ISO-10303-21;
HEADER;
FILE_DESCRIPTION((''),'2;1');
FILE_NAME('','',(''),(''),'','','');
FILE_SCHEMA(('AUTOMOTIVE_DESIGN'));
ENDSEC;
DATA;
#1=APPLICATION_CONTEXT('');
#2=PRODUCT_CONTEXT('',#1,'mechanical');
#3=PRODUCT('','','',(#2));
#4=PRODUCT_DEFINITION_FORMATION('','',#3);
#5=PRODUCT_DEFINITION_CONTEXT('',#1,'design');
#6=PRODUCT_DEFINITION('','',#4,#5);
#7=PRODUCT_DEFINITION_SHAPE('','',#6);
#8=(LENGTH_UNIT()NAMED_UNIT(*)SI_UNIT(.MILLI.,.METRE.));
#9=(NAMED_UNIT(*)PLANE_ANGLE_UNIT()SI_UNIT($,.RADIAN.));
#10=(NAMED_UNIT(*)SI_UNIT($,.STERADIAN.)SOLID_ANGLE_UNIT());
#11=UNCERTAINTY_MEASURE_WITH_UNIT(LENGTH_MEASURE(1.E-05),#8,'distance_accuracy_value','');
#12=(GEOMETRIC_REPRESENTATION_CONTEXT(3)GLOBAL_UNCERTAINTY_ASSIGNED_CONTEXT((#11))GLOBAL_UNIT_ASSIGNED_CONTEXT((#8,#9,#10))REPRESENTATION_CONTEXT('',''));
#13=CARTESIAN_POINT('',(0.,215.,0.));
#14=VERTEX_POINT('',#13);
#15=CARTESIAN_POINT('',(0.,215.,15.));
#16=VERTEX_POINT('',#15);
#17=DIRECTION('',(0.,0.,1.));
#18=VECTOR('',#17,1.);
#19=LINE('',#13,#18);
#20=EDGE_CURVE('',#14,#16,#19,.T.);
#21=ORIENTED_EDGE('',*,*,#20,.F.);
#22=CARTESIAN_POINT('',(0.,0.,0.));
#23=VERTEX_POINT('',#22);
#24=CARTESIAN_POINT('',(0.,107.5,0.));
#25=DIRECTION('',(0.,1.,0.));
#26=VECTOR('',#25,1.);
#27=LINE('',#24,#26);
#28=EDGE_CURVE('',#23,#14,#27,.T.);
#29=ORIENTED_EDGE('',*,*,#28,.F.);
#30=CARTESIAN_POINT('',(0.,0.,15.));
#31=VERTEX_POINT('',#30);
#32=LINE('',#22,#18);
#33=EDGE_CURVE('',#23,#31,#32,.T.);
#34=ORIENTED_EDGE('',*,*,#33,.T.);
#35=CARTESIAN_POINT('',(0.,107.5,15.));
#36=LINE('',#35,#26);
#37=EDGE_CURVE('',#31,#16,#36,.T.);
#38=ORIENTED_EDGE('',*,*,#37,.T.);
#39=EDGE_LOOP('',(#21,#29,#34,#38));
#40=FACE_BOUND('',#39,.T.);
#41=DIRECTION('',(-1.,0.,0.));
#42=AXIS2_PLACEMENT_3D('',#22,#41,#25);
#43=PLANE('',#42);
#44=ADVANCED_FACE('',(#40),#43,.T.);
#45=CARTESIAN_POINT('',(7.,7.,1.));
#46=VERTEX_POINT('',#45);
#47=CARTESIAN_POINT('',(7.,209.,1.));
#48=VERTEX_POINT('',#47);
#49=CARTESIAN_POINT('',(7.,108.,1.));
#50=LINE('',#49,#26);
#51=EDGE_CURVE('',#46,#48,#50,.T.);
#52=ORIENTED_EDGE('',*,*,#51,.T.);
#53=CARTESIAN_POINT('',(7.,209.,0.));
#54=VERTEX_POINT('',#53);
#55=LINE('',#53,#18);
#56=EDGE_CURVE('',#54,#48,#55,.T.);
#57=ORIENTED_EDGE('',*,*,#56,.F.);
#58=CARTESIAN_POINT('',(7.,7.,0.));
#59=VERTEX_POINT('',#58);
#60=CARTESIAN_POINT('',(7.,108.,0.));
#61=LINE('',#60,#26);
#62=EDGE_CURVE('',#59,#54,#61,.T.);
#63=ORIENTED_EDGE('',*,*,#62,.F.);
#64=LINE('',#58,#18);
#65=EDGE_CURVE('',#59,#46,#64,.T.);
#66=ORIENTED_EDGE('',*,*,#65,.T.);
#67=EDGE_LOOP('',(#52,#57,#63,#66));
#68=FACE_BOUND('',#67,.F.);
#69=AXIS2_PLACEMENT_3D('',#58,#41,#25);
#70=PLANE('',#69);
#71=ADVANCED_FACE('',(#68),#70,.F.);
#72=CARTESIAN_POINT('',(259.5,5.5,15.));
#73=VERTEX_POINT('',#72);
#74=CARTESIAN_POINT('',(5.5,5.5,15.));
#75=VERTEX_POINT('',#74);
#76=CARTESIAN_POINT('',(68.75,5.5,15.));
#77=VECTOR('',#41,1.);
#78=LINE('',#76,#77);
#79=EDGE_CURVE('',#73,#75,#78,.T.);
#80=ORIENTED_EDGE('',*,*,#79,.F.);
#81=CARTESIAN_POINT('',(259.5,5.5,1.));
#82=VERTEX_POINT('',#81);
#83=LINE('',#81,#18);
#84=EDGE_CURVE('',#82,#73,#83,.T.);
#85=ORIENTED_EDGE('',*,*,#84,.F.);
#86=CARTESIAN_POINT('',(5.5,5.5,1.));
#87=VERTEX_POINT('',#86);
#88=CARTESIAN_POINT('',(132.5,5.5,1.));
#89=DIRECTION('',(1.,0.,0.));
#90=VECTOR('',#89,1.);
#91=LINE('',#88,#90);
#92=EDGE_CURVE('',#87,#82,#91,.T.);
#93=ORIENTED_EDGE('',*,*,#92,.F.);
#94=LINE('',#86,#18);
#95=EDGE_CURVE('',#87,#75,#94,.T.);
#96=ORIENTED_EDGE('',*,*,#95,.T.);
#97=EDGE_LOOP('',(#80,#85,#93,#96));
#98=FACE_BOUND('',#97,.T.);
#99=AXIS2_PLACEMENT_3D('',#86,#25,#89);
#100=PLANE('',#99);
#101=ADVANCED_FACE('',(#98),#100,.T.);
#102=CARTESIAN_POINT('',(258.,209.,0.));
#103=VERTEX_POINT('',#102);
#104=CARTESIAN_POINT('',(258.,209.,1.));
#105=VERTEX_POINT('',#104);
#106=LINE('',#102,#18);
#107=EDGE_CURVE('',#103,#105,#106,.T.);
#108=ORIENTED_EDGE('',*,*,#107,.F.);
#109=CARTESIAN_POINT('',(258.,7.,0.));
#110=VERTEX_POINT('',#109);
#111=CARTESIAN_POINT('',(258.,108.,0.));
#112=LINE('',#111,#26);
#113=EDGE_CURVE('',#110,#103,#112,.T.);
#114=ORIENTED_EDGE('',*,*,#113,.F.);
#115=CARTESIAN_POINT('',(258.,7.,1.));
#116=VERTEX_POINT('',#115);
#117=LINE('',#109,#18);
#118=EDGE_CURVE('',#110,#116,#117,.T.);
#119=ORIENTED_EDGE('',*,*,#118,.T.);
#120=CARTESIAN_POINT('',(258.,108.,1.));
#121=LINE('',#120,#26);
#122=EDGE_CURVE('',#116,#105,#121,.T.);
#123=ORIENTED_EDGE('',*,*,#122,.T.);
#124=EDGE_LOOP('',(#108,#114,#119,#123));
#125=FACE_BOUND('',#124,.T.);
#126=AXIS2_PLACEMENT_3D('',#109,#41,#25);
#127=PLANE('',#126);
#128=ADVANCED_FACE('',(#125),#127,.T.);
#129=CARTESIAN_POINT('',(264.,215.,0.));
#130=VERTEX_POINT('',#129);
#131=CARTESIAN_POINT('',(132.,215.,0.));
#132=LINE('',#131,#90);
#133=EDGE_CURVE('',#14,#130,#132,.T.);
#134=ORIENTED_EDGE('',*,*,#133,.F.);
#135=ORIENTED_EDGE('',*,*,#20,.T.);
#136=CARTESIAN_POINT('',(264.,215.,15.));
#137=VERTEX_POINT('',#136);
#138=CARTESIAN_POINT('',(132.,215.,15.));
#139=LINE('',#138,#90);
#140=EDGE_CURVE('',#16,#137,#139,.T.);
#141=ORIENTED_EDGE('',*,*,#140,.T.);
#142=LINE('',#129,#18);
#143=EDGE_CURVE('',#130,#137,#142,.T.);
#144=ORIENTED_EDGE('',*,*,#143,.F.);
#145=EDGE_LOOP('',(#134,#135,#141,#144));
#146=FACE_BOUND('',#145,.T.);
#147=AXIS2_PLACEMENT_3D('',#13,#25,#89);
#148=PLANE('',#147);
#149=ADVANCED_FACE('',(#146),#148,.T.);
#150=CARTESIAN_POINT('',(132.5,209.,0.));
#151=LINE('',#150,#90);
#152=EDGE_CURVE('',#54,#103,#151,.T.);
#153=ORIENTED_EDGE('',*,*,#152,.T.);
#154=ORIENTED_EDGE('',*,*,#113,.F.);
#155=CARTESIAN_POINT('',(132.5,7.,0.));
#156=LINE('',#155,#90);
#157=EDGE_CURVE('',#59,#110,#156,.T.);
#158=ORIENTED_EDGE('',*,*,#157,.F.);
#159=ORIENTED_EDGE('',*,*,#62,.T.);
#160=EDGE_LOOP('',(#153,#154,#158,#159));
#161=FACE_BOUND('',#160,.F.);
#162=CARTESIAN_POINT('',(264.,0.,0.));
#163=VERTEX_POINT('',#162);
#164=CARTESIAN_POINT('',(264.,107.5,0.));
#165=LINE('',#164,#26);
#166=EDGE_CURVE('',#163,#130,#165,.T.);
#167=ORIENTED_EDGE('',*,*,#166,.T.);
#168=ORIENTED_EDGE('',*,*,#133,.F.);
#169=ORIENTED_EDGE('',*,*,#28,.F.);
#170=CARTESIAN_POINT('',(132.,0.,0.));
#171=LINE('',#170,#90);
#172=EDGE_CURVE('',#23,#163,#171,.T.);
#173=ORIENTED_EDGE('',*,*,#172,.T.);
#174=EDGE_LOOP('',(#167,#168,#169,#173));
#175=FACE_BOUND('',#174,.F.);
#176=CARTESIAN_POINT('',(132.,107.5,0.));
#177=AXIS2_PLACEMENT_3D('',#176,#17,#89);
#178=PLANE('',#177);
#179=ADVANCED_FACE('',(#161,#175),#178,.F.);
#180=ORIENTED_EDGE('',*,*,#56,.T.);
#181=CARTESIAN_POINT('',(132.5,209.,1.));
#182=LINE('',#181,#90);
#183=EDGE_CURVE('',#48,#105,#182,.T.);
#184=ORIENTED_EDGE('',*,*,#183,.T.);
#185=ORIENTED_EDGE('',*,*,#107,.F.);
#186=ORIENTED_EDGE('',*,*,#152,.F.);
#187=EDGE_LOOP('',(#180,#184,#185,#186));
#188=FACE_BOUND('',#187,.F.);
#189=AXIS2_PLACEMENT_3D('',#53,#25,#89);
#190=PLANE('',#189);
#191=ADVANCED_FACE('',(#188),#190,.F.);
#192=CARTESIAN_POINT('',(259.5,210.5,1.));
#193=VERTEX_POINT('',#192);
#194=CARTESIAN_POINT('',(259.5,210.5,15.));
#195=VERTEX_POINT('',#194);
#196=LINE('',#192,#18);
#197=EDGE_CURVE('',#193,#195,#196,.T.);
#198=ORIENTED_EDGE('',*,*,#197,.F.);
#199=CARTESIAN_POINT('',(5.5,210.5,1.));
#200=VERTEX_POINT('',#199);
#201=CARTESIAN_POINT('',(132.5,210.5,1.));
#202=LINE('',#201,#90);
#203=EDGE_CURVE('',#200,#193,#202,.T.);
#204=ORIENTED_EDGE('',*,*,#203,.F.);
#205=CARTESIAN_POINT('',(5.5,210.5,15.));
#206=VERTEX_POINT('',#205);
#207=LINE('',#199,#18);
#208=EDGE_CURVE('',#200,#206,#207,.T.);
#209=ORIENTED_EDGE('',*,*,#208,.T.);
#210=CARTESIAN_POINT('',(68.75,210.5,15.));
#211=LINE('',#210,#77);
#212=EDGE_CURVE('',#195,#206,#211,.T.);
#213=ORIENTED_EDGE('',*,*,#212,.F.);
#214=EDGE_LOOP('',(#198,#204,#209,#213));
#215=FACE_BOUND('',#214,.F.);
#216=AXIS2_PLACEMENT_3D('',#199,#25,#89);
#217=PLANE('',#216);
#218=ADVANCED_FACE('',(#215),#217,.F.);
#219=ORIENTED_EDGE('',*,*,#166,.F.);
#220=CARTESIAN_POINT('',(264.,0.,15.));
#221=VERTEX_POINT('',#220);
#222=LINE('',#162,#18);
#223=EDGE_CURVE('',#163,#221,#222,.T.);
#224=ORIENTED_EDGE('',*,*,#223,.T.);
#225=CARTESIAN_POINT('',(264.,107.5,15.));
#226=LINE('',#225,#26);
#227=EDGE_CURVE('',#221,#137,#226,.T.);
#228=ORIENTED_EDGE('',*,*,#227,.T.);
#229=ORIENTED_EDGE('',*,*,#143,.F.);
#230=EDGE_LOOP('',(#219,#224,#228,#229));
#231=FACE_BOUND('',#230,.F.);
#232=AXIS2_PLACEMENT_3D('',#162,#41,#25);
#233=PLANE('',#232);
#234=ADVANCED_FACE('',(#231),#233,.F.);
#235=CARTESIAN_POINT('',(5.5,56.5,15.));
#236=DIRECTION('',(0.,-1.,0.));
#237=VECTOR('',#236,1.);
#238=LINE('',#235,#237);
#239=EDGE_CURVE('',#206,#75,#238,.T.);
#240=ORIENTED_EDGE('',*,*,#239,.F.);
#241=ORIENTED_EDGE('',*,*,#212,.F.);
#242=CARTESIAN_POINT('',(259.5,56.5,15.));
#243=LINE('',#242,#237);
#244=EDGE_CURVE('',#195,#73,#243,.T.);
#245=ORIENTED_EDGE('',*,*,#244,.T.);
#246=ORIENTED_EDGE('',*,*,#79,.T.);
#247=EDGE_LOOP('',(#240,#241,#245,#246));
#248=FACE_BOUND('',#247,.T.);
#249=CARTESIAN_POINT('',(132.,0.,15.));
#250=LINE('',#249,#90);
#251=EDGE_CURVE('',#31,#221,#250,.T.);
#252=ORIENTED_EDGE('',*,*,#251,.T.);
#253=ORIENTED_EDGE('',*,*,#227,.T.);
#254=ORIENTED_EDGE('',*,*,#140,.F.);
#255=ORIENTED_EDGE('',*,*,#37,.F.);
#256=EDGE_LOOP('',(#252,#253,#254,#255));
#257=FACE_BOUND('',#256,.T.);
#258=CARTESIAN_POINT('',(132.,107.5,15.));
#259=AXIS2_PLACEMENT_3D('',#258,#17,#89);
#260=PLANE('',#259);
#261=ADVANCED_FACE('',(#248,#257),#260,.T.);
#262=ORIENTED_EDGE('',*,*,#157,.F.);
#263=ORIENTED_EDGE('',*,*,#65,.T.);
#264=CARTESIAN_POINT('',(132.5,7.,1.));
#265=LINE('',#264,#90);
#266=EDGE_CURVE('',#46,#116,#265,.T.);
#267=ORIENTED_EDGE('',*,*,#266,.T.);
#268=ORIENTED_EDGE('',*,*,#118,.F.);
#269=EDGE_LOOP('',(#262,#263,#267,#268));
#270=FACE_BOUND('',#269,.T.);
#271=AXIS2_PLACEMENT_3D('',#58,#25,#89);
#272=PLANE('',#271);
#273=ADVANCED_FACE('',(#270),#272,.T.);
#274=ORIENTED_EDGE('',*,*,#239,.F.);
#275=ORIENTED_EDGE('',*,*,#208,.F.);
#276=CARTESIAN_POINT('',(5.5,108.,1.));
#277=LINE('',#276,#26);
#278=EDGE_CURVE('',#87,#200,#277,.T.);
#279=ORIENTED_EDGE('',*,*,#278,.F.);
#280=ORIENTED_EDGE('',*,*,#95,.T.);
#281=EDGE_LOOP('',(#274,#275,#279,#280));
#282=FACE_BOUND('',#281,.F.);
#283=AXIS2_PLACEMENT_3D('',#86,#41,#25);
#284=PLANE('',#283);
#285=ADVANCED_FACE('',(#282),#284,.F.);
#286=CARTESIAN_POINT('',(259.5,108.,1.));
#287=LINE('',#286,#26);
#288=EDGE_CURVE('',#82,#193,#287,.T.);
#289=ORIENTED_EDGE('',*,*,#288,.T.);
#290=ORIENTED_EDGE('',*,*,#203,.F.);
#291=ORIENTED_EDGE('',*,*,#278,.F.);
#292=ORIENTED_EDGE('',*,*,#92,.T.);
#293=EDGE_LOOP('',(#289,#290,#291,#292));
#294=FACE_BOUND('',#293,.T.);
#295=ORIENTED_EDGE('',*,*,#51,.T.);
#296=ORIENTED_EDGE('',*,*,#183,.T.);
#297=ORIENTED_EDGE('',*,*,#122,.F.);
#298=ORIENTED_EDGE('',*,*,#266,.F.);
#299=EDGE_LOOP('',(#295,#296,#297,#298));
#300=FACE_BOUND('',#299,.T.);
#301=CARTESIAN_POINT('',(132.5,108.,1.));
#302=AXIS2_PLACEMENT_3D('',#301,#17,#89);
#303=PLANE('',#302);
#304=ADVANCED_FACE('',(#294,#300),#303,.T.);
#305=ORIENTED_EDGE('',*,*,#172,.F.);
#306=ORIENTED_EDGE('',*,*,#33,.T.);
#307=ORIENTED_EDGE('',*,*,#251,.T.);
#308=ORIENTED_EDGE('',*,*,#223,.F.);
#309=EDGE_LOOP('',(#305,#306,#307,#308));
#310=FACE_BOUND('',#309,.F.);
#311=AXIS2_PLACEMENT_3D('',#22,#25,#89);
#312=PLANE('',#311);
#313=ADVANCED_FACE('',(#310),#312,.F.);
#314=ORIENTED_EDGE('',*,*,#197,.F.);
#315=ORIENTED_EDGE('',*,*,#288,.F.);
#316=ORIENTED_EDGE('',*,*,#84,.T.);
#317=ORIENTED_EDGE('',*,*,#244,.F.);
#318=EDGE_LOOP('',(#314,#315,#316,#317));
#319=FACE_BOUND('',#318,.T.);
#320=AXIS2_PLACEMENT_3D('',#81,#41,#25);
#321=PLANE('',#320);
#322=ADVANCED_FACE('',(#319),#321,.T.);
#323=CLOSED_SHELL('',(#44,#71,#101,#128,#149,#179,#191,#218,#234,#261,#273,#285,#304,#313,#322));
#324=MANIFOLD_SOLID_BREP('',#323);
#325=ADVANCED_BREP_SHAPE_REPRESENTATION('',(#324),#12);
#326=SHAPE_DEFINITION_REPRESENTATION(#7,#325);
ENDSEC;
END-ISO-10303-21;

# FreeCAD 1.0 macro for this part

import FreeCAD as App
import Part
import Sketcher

doc = App.newDocument("Part")
body = doc.addObject("PartDesign::Body", "Body")

sketch1 = doc.addObject("Sketcher::SketchObject", "Sketch")
body.addObject(sketch1)
sketch1.AttachmentSupport = (doc.XY_Plane, [""])
sketch1.MapMode = "FlatFace"
sketch1.addGeometry([
    Part.LineSegment(App.Vector(7, 209, 0), App.Vector(7, 7, 0)),
    Part.LineSegment(App.Vector(7, 7, 0), App.Vector(258, 7, 0)),
    Part.LineSegment(App.Vector(258, 7, 0), App.Vector(258, 209, 0)),
    Part.LineSegment(App.Vector(258, 209, 0), App.Vector(7, 209, 0)),
], False)
sketch1.addConstraint([
    Sketcher.Constraint("Coincident", 0, 2, 1, 1),
    Sketcher.Constraint("Coincident", 1, 2, 2, 1),
    Sketcher.Constraint("Coincident", 2, 2, 3, 1),
    Sketcher.Constraint("Coincident", 3, 2, 0, 1),
    Sketcher.Constraint("Vertical", 0),
    Sketcher.Constraint("Horizontal", 1),
    Sketcher.Constraint("Vertical", 2),
    Sketcher.Constraint("Horizontal", 3),
    Sketcher.Constraint("DistanceX", 1, 1, 1, 2, 251.0),
    Sketcher.Constraint("DistanceY", 0, 2, 0, 1, 202.0),
    Sketcher.Constraint("DistanceX", -1, 1, 0, 2, 7.0),
    Sketcher.Constraint("DistanceY", -1, 1, 0, 2, 7.0),
])
pad1 = doc.addObject("PartDesign::Pad", "Pad")
body.addObject(pad1)
pad1.Profile = sketch1
pad1.Length = 1
body2 = doc.addObject("PartDesign::Body", "Body001")

sketch2 = doc.addObject("Sketcher::SketchObject", "Sketch001")
body2.addObject(sketch2)
sketch2.AttachmentSupport = (doc.getObject("XY_Plane001"), [""])
sketch2.MapMode = "FlatFace"
sketch2.AttachmentOffset = App.Placement(App.Vector(0, 0, 1), App.Rotation())
sketch2.addGeometry([
    Part.LineSegment(App.Vector(6, 210, 0), App.Vector(6, 6, 0)),
    Part.LineSegment(App.Vector(6, 6, 0), App.Vector(260, 6, 0)),
    Part.LineSegment(App.Vector(260, 6, 0), App.Vector(260, 210, 0)),
    Part.LineSegment(App.Vector(260, 210, 0), App.Vector(6, 210, 0)),
], False)
sketch2.addConstraint([
    Sketcher.Constraint("Coincident", 0, 2, 1, 1),
    Sketcher.Constraint("Coincident", 1, 2, 2, 1),
    Sketcher.Constraint("Coincident", 2, 2, 3, 1),
    Sketcher.Constraint("Coincident", 3, 2, 0, 1),
    Sketcher.Constraint("Vertical", 0),
    Sketcher.Constraint("Horizontal", 1),
    Sketcher.Constraint("Vertical", 2),
    Sketcher.Constraint("Horizontal", 3),
    Sketcher.Constraint("DistanceX", 1, 1, 1, 2, 254.0),
    Sketcher.Constraint("DistanceY", 0, 2, 0, 1, 205.0),
    Sketcher.Constraint("DistanceX", -1, 1, 0, 2, 5.5),
    Sketcher.Constraint("DistanceY", -1, 1, 0, 2, 5.5),
])
pad2 = doc.addObject("PartDesign::Pad", "Pad001")
body2.addObject(pad2)
pad2.Profile = sketch2
pad2.Length = 16
body3 = doc.addObject("PartDesign::Body", "Body002")

sketch3 = doc.addObject("Sketcher::SketchObject", "Sketch002")
body3.addObject(sketch3)
sketch3.AttachmentSupport = (doc.getObject("XY_Plane002"), [""])
sketch3.MapMode = "FlatFace"
sketch3.addGeometry([
    Part.LineSegment(App.Vector(0, 215, 0), App.Vector(0, 0, 0)),
    Part.LineSegment(App.Vector(0, 0, 0), App.Vector(264, 0, 0)),
    Part.LineSegment(App.Vector(264, 0, 0), App.Vector(264, 215, 0)),
    Part.LineSegment(App.Vector(264, 215, 0), App.Vector(0, 215, 0)),
], False)
sketch3.addConstraint([
    Sketcher.Constraint("Coincident", 0, 2, 1, 1),
    Sketcher.Constraint("Coincident", 1, 2, 2, 1),
    Sketcher.Constraint("Coincident", 2, 2, 3, 1),
    Sketcher.Constraint("Coincident", 3, 2, 0, 1),
    Sketcher.Constraint("Vertical", 0),
    Sketcher.Constraint("Horizontal", 1),
    Sketcher.Constraint("Vertical", 2),
    Sketcher.Constraint("Horizontal", 3),
    Sketcher.Constraint("Coincident", 0, 2, -1, 1),
    Sketcher.Constraint("DistanceX", 1, 1, 1, 2, 264.0),
    Sketcher.Constraint("DistanceY", 0, 2, 0, 1, 215.0),
])
pad3 = doc.addObject("PartDesign::Pad", "Pad002")
body3.addObject(pad3)
pad3.Profile = sketch3
pad3.Length = 15
doc.recompute()

boolean = doc.addObject("PartDesign::Boolean", "Boolean")
body3.addObject(boolean)
boolean.Type = "Cut"
boolean.addObjects([body2])
doc.recompute()

boolean2 = doc.addObject("PartDesign::Boolean", "Boolean001")
body3.addObject(boolean2)
boolean2.Type = "Cut"
boolean2.addObjects([body])

doc.recompute()
